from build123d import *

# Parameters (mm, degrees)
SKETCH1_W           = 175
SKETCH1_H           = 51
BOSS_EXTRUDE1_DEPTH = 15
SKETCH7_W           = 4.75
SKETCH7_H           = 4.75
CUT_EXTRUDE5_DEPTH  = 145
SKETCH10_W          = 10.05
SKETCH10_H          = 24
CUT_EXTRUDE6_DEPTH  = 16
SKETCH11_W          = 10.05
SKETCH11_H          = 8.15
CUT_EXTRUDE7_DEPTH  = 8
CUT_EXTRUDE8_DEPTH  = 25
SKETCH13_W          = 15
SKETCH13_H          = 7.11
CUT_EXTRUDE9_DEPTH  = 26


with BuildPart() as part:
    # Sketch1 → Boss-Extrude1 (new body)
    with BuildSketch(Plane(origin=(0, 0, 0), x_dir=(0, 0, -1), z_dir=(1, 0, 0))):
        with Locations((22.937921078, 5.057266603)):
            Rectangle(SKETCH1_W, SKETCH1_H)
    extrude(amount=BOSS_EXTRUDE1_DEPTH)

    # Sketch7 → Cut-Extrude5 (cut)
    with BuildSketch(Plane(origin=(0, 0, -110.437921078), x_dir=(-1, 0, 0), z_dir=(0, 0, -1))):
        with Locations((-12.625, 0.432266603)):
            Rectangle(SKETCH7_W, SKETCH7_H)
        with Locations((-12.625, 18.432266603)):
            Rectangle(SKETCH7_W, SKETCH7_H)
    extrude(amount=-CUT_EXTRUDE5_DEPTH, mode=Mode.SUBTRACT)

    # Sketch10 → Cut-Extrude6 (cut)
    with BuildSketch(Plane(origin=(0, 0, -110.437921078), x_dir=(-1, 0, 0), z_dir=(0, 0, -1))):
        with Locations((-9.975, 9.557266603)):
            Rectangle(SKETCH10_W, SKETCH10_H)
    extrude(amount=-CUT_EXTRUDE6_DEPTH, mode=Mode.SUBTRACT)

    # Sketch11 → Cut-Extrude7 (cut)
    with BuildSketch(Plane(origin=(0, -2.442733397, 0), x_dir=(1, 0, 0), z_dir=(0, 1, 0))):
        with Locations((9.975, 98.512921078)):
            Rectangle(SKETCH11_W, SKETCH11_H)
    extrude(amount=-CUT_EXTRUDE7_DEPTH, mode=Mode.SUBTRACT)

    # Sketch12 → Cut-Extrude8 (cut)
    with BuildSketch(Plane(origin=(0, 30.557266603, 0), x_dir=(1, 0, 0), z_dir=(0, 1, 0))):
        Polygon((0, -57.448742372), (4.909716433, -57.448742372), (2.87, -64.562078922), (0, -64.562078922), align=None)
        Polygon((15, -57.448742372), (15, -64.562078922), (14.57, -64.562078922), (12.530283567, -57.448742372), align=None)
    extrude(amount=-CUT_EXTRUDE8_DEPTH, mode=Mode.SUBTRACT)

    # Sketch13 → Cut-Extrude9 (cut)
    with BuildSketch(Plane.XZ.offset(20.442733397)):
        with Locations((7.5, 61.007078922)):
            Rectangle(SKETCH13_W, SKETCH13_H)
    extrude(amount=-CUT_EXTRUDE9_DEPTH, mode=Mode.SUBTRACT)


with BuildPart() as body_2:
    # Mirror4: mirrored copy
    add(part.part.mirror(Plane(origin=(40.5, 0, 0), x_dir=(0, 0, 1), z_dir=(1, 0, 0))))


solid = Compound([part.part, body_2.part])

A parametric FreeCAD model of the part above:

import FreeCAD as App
import Part
import Sketcher
from FreeCAD import Vector
Q = App.Units.Quantity

doc = App.newDocument("Part")
body = doc.addObject("PartDesign::Body", "Body")

sketch1 = doc.addObject("Sketcher::SketchObject", "Sketch")
body.addObject(sketch1)
sketch1.AttachmentSupport = (doc.YZ_Plane, [""])
sketch1.MapMode = "FlatFace"
sketch1.addGeometry([
    Part.LineSegment(Vector(31, 65, 0), Vector(-20, 65, 0)),
    Part.LineSegment(Vector(-20, 65, 0), Vector(-20, -110, 0)),
    Part.LineSegment(Vector(-20, -110, 0), Vector(31, -110, 0)),
    Part.LineSegment(Vector(31, -110, 0), Vector(31, 65, 0)),
], False)
sketch1.addConstraint([
    Sketcher.Constraint("Coincident", 0, 2, 1, 1),
    Sketcher.Constraint("Coincident", 1, 2, 2, 1),
    Sketcher.Constraint("Coincident", 2, 2, 3, 1),
    Sketcher.Constraint("Coincident", 3, 2, 0, 1),
    Sketcher.Constraint("Horizontal", 0),
    Sketcher.Constraint("Vertical", 1),
    Sketcher.Constraint("Horizontal", 2),
    Sketcher.Constraint("Vertical", 3),
    Sketcher.Constraint("DistanceX", 0, 2, 0, 1, 51.0),
    Sketcher.Constraint("DistanceY", 1, 2, 1, 1, 175.0),
    Sketcher.Constraint("DistanceY", -1, 1, 0, 2, 64.562079),
    Sketcher.Constraint("DistanceX", 0, 2, -1, 1, 20.442733),
])
pad1 = doc.addObject("PartDesign::Pad", "Pad")
body.addObject(pad1)
pad1.Profile = sketch1
pad1.Length = 15

sketch2 = doc.addObject("Sketcher::SketchObject", "Sketch001")
body.addObject(sketch2)
sketch2.AttachmentSupport = (doc.XY_Plane, [""])
sketch2.MapMode = "FlatFace"
sketch2.AttachmentOffset = App.Placement(Vector(0, 0, -110.437921), App.Rotation())
sketch2.addGeometry([
    Part.LineSegment(Vector(15, 2.8, 0), Vector(15, -1.9, 0)),
    Part.LineSegment(Vector(15, -1.9, 0), Vector(10.2, -1.9, 0)),
    Part.LineSegment(Vector(10.2, -1.9, 0), Vector(10.2, 2.8, 0)),
    Part.LineSegment(Vector(10.2, 2.8, 0), Vector(15, 2.8, 0)),
    Part.LineSegment(Vector(15, 20.8, 0), Vector(15, 16.1, 0)),
    Part.LineSegment(Vector(15, 16.1, 0), Vector(10.2, 16.1, 0)),
    Part.LineSegment(Vector(10.2, 16.1, 0), Vector(10.2, 20.8, 0)),
    Part.LineSegment(Vector(10.2, 20.8, 0), Vector(15, 20.8, 0)),
], False)
sketch2.addConstraint([
    Sketcher.Constraint("Coincident", 0, 2, 1, 1),
    Sketcher.Constraint("Coincident", 1, 2, 2, 1),
    Sketcher.Constraint("Coincident", 2, 2, 3, 1),
    Sketcher.Constraint("Coincident", 3, 2, 0, 1),
    Sketcher.Constraint("Coincident", 4, 2, 5, 1),
    Sketcher.Constraint("Coincident", 5, 2, 6, 1),
    Sketcher.Constraint("Coincident", 6, 2, 7, 1),
    Sketcher.Constraint("Coincident", 7, 2, 4, 1),
    Sketcher.Constraint("Vertical", 0),
    Sketcher.Constraint("Horizontal", 1),
    Sketcher.Constraint("Vertical", 2),
    Sketcher.Constraint("Horizontal", 3),
    Sketcher.Constraint("Vertical", 4),
    Sketcher.Constraint("Horizontal", 5),
    Sketcher.Constraint("Vertical", 6),
    Sketcher.Constraint("Horizontal", 7),
    Sketcher.Constraint("Vertical", 3, 2, 4, 2),
    Sketcher.Constraint("Vertical", 2, 2, 5, 2),
    Sketcher.Constraint("Equal", 7, 0),
    Sketcher.Constraint("Equal", 2, 4),
    Sketcher.Constraint("DistanceX", -1, 1, 0, 2, 15.0),
    Sketcher.Constraint("DistanceY", 0, 2, 4, 2, 18.0),
    Sketcher.Constraint("DistanceX", 1, 2, 1, 1, 4.75),
    Sketcher.Constraint("DistanceY", 0, 2, -1, 1, 1.942733),
])
pocket1 = doc.addObject("PartDesign::Pocket", "Pocket")
body.addObject(pocket1)
pocket1.Profile = sketch2
pocket1.Length = 145
pocket1.Reversed = True

sketch3 = doc.addObject("Sketcher::SketchObject", "Sketch002")
body.addObject(sketch3)
sketch3.AttachmentSupport = (doc.XY_Plane, [""])
sketch3.MapMode = "FlatFace"
sketch3.AttachmentOffset = App.Placement(Vector(0, 0, -110.437921), App.Rotation())
sketch3.addGeometry([
    Part.LineSegment(Vector(15, 22, 0), Vector(15, -2, 0)),
    Part.LineSegment(Vector(15, -2, 0), Vector(5, -2, 0)),
    Part.LineSegment(Vector(5, -2, 0), Vector(5, 22, 0)),
    Part.LineSegment(Vector(5, 22, 0), Vector(15, 22, 0)),
], False)
sketch3.addConstraint([
    Sketcher.Constraint("Coincident", 0, 2, 1, 1),
    Sketcher.Constraint("Coincident", 1, 2, 2, 1),
    Sketcher.Constraint("Coincident", 2, 2, 3, 1),
    Sketcher.Constraint("Coincident", 3, 2, 0, 1),
    Sketcher.Constraint("Vertical", 0),
    Sketcher.Constraint("Horizontal", 1),
    Sketcher.Constraint("Vertical", 2),
    Sketcher.Constraint("Horizontal", 3),
    Sketcher.Constraint("DistanceY", 0, 2, 0, 1, 24.0),
    Sketcher.Constraint("DistanceX", -1, 1, 0, 2, 15.0),
    Sketcher.Constraint("DistanceX", 1, 2, 1, 1, 10.05),
    Sketcher.Constraint("DistanceY", 0, 2, -1, 1, 2.442733),
])
pocket2 = doc.addObject("PartDesign::Pocket", "Pocket001")
body.addObject(pocket2)
pocket2.Profile = sketch3
pocket2.Length = 16
pocket2.Reversed = True

sketch4 = doc.addObject("Sketcher::SketchObject", "Sketch003")
body.addObject(sketch4)
sketch4.AttachmentSupport = (doc.XZ_Plane, [""])
sketch4.MapMode = "FlatFace"
sketch4.AttachmentOffset = App.Placement(Vector(0, 0, 2.442733), App.Rotation())
sketch4.addGeometry([
    Part.LineSegment(Vector(5, -103, 0), Vector(5, -94, 0)),
    Part.LineSegment(Vector(5, -94, 0), Vector(15, -94, 0)),
    Part.LineSegment(Vector(15, -94, 0), Vector(15, -103, 0)),
    Part.LineSegment(Vector(15, -103, 0), Vector(5, -103, 0)),
], False)
sketch4.addConstraint([
    Sketcher.Constraint("Coincident", 0, 2, 1, 1),
    Sketcher.Constraint("Coincident", 1, 2, 2, 1),
    Sketcher.Constraint("Coincident", 2, 2, 3, 1),
    Sketcher.Constraint("Coincident", 3, 2, 0, 1),
    Sketcher.Constraint("Vertical", 0),
    Sketcher.Constraint("Horizontal", 1),
    Sketcher.Constraint("Vertical", 2),
    Sketcher.Constraint("Horizontal", 3),
    Sketcher.Constraint("DistanceX", -1, 1, 1, 2, 15.0),
    Sketcher.Constraint("DistanceX", 1, 1, 1, 2, 10.05),
    Sketcher.Constraint("DistanceY", 0, 1, 0, 2, 8.15),
    Sketcher.Constraint("DistanceY", 0, 2, -1, 1, 94.437921),
])
pocket3 = doc.addObject("PartDesign::Pocket", "Pocket002")
body.addObject(pocket3)
pocket3.Profile = sketch4
pocket3.Length = 8
pocket3.Reversed = True

sketch5 = doc.addObject("Sketcher::SketchObject", "Sketch004")
body.addObject(sketch5)
sketch5.AttachmentSupport = (doc.XZ_Plane, [""])
sketch5.MapMode = "FlatFace"
sketch5.AttachmentOffset = App.Placement(Vector(0, 0, -30.557267), App.Rotation())
sketch5.addGeometry([
    Part.LineSegment(Vector(4.91, 57.45, 0), Vector(0, 57.45, 0)),
    Part.LineSegment(Vector(0, 57.45, 0), Vector(0, 64.56, 0)),
    Part.LineSegment(Vector(0, 64.56, 0), Vector(2.87, 64.56, 0)),
    Part.LineSegment(Vector(2.87, 64.56, 0), Vector(4.91, 57.45, 0)),
    Part.LineSegment(Vector(15, 64.56, 0), Vector(15, 57.45, 0)),
    Part.LineSegment(Vector(15, 57.45, 0), Vector(12.53, 57.45, 0)),
    Part.LineSegment(Vector(12.53, 57.45, 0), Vector(14.57, 64.56, 0)),
    Part.LineSegment(Vector(14.57, 64.56, 0), Vector(15, 64.56, 0)),
], False)
sketch5.addConstraint([
    Sketcher.Constraint("Coincident", 0, 2, 1, 1),
    Sketcher.Constraint("Coincident", 1, 2, 2, 1),
    Sketcher.Constraint("Coincident", 2, 2, 3, 1),
    Sketcher.Constraint("Coincident", 3, 2, 0, 1),
    Sketcher.Constraint("Coincident", 4, 2, 5, 1),
    Sketcher.Constraint("Coincident", 5, 2, 6, 1),
    Sketcher.Constraint("Coincident", 6, 2, 7, 1),
    Sketcher.Constraint("Coincident", 7, 2, 4, 1),
    Sketcher.Constraint("Horizontal", 0),
    Sketcher.Constraint("Vertical", 1),
    Sketcher.Constraint("Horizontal", 2),
    Sketcher.Constraint("Vertical", 4),
    Sketcher.Constraint("Horizontal", 5),
    Sketcher.Constraint("Horizontal", 7),
    Sketcher.Constraint("PointOnObject", 0, 2, -2),
    Sketcher.Constraint("Horizontal", 3, 2, 4, 2),
    Sketcher.Constraint("Horizontal", 2, 2, 6, 2),
    Sketcher.Constraint("Equal", 3, 6),
    Sketcher.Constraint("Angle", 3, Q("-74 deg")),
    Sketcher.Constraint("DistanceX", -1, 1, 4, 2, 15.0),
    Sketcher.Constraint("Distance", 3, 7.4),
    Sketcher.Constraint("DistanceX", 2, 1, 2, 2, 2.87),
    Sketcher.Constraint("DistanceX", 7, 1, 7, 2, 0.43),
    Sketcher.Constraint("DistanceY", -1, 1, 1, 2, 64.562079),
])
pocket4 = doc.addObject("PartDesign::Pocket", "Pocket003")
body.addObject(pocket4)
pocket4.Profile = sketch5
pocket4.Length = 25
pocket4.Reversed = True

sketch6 = doc.addObject("Sketcher::SketchObject", "Sketch005")
body.addObject(sketch6)
sketch6.AttachmentSupport = (doc.XZ_Plane, [""])
sketch6.MapMode = "FlatFace"
sketch6.AttachmentOffset = App.Placement(Vector(0, 0, 20.442733), App.Rotation())
sketch6.addGeometry([
    Part.LineSegment(Vector(0, 65, 0), Vector(0, 57, 0)),
    Part.LineSegment(Vector(0, 57, 0), Vector(15, 57, 0)),
    Part.LineSegment(Vector(15, 57, 0), Vector(15, 65, 0)),
    Part.LineSegment(Vector(15, 65, 0), Vector(0, 65, 0)),
], False)
sketch6.addConstraint([
    Sketcher.Constraint("Coincident", 0, 2, 1, 1),
    Sketcher.Constraint("Coincident", 1, 2, 2, 1),
    Sketcher.Constraint("Coincident", 2, 2, 3, 1),
    Sketcher.Constraint("Coincident", 3, 2, 0, 1),
    Sketcher.Constraint("Vertical", 0),
    Sketcher.Constraint("Horizontal", 1),
    Sketcher.Constraint("Vertical", 2),
    Sketcher.Constraint("Horizontal", 3),
    Sketcher.Constraint("PointOnObject", 0, 2, -2),
    Sketcher.Constraint("DistanceX", 1, 1, 1, 2, 15.0),
    Sketcher.Constraint("DistanceY", 0, 2, 0, 1, 7.11),
    Sketcher.Constraint("DistanceY", -1, 1, 0, 2, 57.452079),
])
pocket5 = doc.addObject("PartDesign::Pocket", "Pocket004")
body.addObject(pocket5)
pocket5.Profile = sketch6
pocket5.Length = 26
body2 = doc.addObject("PartDesign::Body", "Body001")
doc.recompute()

mirroring = doc.addObject("Part::Mirroring", "Mirroring")
mirroring.Source = body
mirroring.Base = Vector(40.5, 0, 0)
mirroring.Normal = Vector(1, 0, 0)
body2.BaseFeature = mirroring
doc.recompute()
mirroring.Visibility = False

doc.recompute()
